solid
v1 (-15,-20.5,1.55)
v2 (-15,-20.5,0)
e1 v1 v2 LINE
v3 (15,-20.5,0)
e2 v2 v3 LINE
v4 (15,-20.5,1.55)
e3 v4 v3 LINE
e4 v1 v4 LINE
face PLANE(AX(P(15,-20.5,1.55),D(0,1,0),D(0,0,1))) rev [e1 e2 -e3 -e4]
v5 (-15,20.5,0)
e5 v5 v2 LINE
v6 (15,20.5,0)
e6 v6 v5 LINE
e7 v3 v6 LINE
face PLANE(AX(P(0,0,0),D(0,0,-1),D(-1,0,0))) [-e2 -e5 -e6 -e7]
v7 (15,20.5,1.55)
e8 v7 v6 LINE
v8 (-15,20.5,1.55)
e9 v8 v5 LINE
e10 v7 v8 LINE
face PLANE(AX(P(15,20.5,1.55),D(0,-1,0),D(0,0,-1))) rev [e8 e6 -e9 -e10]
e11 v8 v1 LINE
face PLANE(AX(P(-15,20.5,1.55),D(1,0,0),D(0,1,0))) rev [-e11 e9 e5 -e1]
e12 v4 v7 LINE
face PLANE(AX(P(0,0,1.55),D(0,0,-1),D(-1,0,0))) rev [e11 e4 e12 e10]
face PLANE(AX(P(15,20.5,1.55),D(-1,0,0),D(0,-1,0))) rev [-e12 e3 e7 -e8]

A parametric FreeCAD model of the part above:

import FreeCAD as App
import Part
import Sketcher
from FreeCAD import Vector


def add_polygon(sketch, points):
    """Adds a closed chain of lines whose ends are joined by coincident constraints."""
    first, n = sketch.GeometryCount, len(points)
    for a, b in zip(points, points[1:] + points[:1]):
        sketch.addGeometry(Part.LineSegment(App.Vector(*a, 0), App.Vector(*b, 0)), False)
    for i in range(n):
        sketch.addConstraint(Sketcher.Constraint("Coincident", first + i, 2, first + (i + 1) % n, 1))

doc = App.newDocument("Part")
body = doc.addObject("PartDesign::Body", "Body")

sketch1 = body.newObject("Sketcher::SketchObject", "Sketch")
sketch1.AttachmentSupport = (doc.getObject("XY_Plane"), [""])
sketch1.MapMode = "FlatFace"
add_polygon(sketch1, [(-15, 20), (-15, -20), (15, -20), (15, 20)])
sketch1.addConstraint(Sketcher.Constraint("Vertical", 0))
sketch1.addConstraint(Sketcher.Constraint("Horizontal", 1))
sketch1.addConstraint(Sketcher.Constraint("Vertical", 2))
sketch1.addConstraint(Sketcher.Constraint("Horizontal", 3))
sketch1.addConstraint(Sketcher.Constraint("Symmetric", 0, 2, 2, 2, -1, 1))
sketch1.addConstraint(Sketcher.Constraint("DistanceX", 1, 1, 1, 2, 30.0))
sketch1.addConstraint(Sketcher.Constraint("DistanceY", 0, 2, 0, 1, 41.0))
pad1 = body.newObject("PartDesign::Pad", "Pad")
pad1.Profile = sketch1
pad1.Length = 1.55

doc.recompute()
